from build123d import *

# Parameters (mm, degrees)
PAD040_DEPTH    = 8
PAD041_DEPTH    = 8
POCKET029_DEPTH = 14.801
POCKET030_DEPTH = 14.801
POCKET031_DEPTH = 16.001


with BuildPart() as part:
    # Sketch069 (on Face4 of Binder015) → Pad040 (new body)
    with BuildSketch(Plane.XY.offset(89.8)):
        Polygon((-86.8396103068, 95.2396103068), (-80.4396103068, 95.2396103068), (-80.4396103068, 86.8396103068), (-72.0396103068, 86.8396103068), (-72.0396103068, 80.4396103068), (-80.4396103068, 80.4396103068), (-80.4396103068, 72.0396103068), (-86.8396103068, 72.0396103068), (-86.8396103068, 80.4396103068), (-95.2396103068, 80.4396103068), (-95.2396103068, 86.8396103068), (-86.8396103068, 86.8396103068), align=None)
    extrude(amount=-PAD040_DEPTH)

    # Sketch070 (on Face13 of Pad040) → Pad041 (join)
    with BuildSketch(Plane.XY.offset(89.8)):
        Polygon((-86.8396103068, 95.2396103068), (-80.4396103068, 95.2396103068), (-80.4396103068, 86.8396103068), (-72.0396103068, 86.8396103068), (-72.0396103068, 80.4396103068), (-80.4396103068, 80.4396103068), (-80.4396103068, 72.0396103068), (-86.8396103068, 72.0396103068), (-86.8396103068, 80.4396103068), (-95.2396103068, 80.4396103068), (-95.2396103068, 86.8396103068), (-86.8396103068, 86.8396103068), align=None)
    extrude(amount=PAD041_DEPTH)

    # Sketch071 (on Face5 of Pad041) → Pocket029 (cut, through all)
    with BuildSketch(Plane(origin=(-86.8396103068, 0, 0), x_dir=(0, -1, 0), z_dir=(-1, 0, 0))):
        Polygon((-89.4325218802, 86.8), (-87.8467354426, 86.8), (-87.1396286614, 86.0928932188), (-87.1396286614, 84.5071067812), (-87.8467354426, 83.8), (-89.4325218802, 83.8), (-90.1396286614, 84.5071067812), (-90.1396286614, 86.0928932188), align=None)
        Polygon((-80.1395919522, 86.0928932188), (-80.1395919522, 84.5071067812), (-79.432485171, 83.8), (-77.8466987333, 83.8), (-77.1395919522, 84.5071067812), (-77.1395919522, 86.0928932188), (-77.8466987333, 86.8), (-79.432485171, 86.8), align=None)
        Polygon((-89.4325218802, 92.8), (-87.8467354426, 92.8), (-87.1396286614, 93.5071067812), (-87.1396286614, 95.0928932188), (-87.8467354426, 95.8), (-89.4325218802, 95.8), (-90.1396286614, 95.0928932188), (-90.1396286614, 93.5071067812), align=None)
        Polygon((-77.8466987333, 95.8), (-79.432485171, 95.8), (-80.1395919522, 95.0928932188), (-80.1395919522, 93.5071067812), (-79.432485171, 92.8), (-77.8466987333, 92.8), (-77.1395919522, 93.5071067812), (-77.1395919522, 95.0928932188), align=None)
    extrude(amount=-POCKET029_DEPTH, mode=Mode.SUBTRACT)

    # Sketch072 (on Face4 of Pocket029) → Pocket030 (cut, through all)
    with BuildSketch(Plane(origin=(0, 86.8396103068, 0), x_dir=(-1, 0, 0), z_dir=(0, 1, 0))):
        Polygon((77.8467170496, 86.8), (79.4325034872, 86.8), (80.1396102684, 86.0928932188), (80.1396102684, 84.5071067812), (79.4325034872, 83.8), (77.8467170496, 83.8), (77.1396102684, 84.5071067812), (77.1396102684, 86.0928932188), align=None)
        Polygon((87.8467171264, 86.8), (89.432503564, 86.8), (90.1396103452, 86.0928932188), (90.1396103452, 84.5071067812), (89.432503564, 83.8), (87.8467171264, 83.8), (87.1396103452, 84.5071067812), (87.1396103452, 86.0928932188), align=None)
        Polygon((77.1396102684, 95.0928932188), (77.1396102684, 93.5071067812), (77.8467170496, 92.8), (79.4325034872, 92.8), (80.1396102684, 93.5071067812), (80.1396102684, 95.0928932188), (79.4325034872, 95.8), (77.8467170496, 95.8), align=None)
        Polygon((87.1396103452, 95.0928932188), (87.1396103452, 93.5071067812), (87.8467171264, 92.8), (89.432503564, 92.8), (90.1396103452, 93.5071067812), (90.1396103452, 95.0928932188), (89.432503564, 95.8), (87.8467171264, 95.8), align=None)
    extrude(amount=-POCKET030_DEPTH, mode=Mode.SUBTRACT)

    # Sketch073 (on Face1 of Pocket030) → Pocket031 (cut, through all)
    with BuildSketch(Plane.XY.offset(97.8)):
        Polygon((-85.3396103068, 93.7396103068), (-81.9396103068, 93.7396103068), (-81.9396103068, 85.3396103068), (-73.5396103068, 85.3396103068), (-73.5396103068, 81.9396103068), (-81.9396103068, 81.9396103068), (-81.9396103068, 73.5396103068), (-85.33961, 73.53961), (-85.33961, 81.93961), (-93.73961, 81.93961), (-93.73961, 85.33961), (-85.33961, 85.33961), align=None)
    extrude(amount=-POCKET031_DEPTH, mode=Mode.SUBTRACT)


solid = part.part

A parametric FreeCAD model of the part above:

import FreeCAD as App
import Part
import Sketcher
Q = App.Units.Quantity


def add_polygon(sketch, points):
    """Adds a closed chain of lines whose ends are joined by coincident constraints."""
    first, n = sketch.GeometryCount, len(points)
    for a, b in zip(points, points[1:] + points[:1]):
        sketch.addGeometry(Part.LineSegment(App.Vector(*a, 0), App.Vector(*b, 0)), False)
    for i in range(n):
        sketch.addConstraint(Sketcher.Constraint("Coincident", first + i, 2, first + (i + 1) % n, 1))

doc = App.newDocument("Part")
body = doc.addObject("PartDesign::Body", "Body")

# Sketch on XY plane
sketch1 = doc.addObject("Sketcher::SketchObject", "Sketch")
body.addObject(sketch1)
sketch1.AttachmentSupport = (doc.XY_Plane, [""])
sketch1.MapMode = "FlatFace"
sketch1.AttachmentOffset = App.Placement(App.Vector(0, 0, 89.8), App.Rotation())
add_polygon(sketch1, [(-80, 95), (-87, 95), (-87, 87), (-95, 87), (-95, 80), (-87, 80), (-87, 72), (-80, 72), (-80, 80), (-72, 80), (-72, 87), (-80, 87)])  # lines 0-11
sketch1.addConstraint([
    Sketcher.Constraint("Horizontal", 0),
    Sketcher.Constraint("Vertical", 1),
    Sketcher.Constraint("Horizontal", 2),
    Sketcher.Constraint("Vertical", 3),
    Sketcher.Constraint("Horizontal", 4),
    Sketcher.Constraint("Vertical", 5),
    Sketcher.Constraint("Horizontal", 6),
    Sketcher.Constraint("Vertical", 7),
    Sketcher.Constraint("Horizontal", 8),
    Sketcher.Constraint("Vertical", 9),
    Sketcher.Constraint("Horizontal", 10),
    Sketcher.Constraint("Vertical", 11),
    Sketcher.Constraint("Horizontal", 4, 2, 7, 2),
    Sketcher.Constraint("Horizontal", 2, 2, 9, 2),
    Sketcher.Constraint("Vertical", 1, 2, 4, 2),
    Sketcher.Constraint("Vertical", 7, 2, 10, 2),
    Sketcher.Constraint("Equal", 4, 8),
    Sketcher.Constraint("Equal", 10, 1),
    Sketcher.Constraint("Equal", 6, 3),
    Sketcher.Constraint("Equal", 1, 5),
    Sketcher.Constraint("DistanceX", 0, 2, 0, 1, Q("6.4 mm")),
    Sketcher.Constraint("DistanceX", 2, 2, 2, 1, Q("8.4 mm")),
    Sketcher.Constraint("DistanceX", 0, 2, -1, 1, Q("86.83961 mm")),
    Sketcher.Constraint("DistanceY", -1, 1, 0, 2, Q("95.23961 mm")),
])
pad1 = doc.addObject("PartDesign::Pad", "Pad")
body.addObject(pad1)
pad1.Profile = sketch1
pad1.Length = 8
pad1.Reversed = True

# Sketch on XY plane
sketch2 = doc.addObject("Sketcher::SketchObject", "Sketch001")
body.addObject(sketch2)
sketch2.AttachmentSupport = (doc.XY_Plane, [""])
sketch2.MapMode = "FlatFace"
sketch2.AttachmentOffset = App.Placement(App.Vector(0, 0, 89.8), App.Rotation())
add_polygon(sketch2, [(-80, 95), (-87, 95), (-87, 87), (-95, 87), (-95, 80), (-87, 80), (-87, 72), (-80, 72), (-80, 80), (-72, 80), (-72, 87), (-80, 87)])  # lines 0-11
sketch2.addConstraint([
    Sketcher.Constraint("Horizontal", 0),
    Sketcher.Constraint("Vertical", 1),
    Sketcher.Constraint("Horizontal", 2),
    Sketcher.Constraint("Vertical", 3),
    Sketcher.Constraint("Horizontal", 4),
    Sketcher.Constraint("Vertical", 5),
    Sketcher.Constraint("Horizontal", 6),
    Sketcher.Constraint("Vertical", 7),
    Sketcher.Constraint("Horizontal", 8),
    Sketcher.Constraint("Vertical", 9),
    Sketcher.Constraint("Horizontal", 10),
    Sketcher.Constraint("Vertical", 11),
    Sketcher.Constraint("Horizontal", 4, 2, 7, 2),
    Sketcher.Constraint("Horizontal", 2, 2, 9, 2),
    Sketcher.Constraint("Vertical", 1, 2, 4, 2),
    Sketcher.Constraint("Vertical", 7, 2, 10, 2),
    Sketcher.Constraint("Equal", 4, 8),
    Sketcher.Constraint("Equal", 10, 1),
    Sketcher.Constraint("Equal", 6, 3),
    Sketcher.Constraint("Equal", 1, 5),
    Sketcher.Constraint("DistanceX", 0, 2, 0, 1, Q("6.4 mm")),
    Sketcher.Constraint("DistanceX", 2, 2, 2, 1, Q("8.4 mm")),
    Sketcher.Constraint("DistanceX", 0, 2, -1, 1, Q("86.83961 mm")),
    Sketcher.Constraint("DistanceY", -1, 1, 0, 2, Q("95.23961 mm")),
])
pad2 = doc.addObject("PartDesign::Pad", "Pad001")
body.addObject(pad2)
pad2.Profile = sketch2
pad2.Length = 8

# Sketch on YZ plane
sketch3 = doc.addObject("Sketcher::SketchObject", "Sketch002")
body.addObject(sketch3)
sketch3.AttachmentSupport = (doc.YZ_Plane, [""])
sketch3.MapMode = "FlatFace"
sketch3.AttachmentOffset = App.Placement(App.Vector(0, 0, -86.83961), App.Rotation())
add_polygon(sketch3, [(87.8, 86.8), (89.4, 86.8), (90.1, 86.1), (90.1, 84.5), (89.4, 83.8), (87.8, 83.8), (87.1, 84.5), (87.1, 86.1)])  # lines 0-7
add_polygon(sketch3, [(80.1, 86.1), (80.1, 84.5), (79.4, 83.8), (77.8, 83.8), (77.1, 84.5), (77.1, 86.1), (77.8, 86.8), (79.4, 86.8)])  # lines 8-15
add_polygon(sketch3, [(89.4, 92.8), (87.8, 92.8), (87.1, 93.5), (87.1, 95.1), (87.8, 95.8), (89.4, 95.8), (90.1, 95.1), (90.1, 93.5)])  # lines 16-23
add_polygon(sketch3, [(77.8, 95.8), (79.4, 95.8), (80.1, 95.1), (80.1, 93.5), (79.4, 92.8), (77.8, 92.8), (77.1, 93.5), (77.1, 95.1)])  # lines 24-31
sketch3.addConstraint([
    Sketcher.Constraint("Horizontal", 0),
    Sketcher.Constraint("Vertical", 2),
    Sketcher.Constraint("Horizontal", 4),
    Sketcher.Constraint("Vertical", 6),
    Sketcher.Constraint("Vertical", 8),
    Sketcher.Constraint("Horizontal", 10),
    Sketcher.Constraint("Vertical", 12),
    Sketcher.Constraint("Horizontal", 14),
    Sketcher.Constraint("Horizontal", 16),
    Sketcher.Constraint("Vertical", 18),
    Sketcher.Constraint("Horizontal", 20),
    Sketcher.Constraint("Vertical", 22),
    Sketcher.Constraint("Horizontal", 24),
    Sketcher.Constraint("Vertical", 26),
    Sketcher.Constraint("Horizontal", 28),
    Sketcher.Constraint("Vertical", 30),
    Sketcher.Constraint("Perpendicular", 1, 3),
    Sketcher.Constraint("Perpendicular", 3, 5),
    Sketcher.Constraint("Perpendicular", 5, 7),
    Sketcher.Constraint("Parallel", 7, 9),
    Sketcher.Constraint("Perpendicular", 9, 11),
    Sketcher.Constraint("Perpendicular", 11, 13),
    Sketcher.Constraint("Perpendicular", 13, 15),
    Sketcher.Constraint("Parallel", 15, 17),
    Sketcher.Constraint("Perpendicular", 17, 19),
    Sketcher.Constraint("Perpendicular", 19, 21),
    Sketcher.Constraint("Perpendicular", 21, 23),
    Sketcher.Constraint("Perpendicular", 23, 25),
    Sketcher.Constraint("Perpendicular", 25, 27),
    Sketcher.Constraint("Perpendicular", 27, 29),
    Sketcher.Constraint("Perpendicular", 29, 31),
    Sketcher.Constraint("Horizontal", 2, 2, 5, 2),
    Sketcher.Constraint("Horizontal", 1, 2, 6, 2),
    Sketcher.Constraint("Horizontal", 5, 2, 8, 2),
    Sketcher.Constraint("Horizontal", 4, 2, 9, 2),
    Sketcher.Constraint("Horizontal", 8, 2, 11, 2),
    Sketcher.Constraint("Horizontal", 6, 2, 12, 2),
    Sketcher.Constraint("Horizontal", 7, 2, 13, 2),
    Sketcher.Constraint("Horizontal", 12, 2, 15, 2),
    Sketcher.Constraint("Horizontal", 18, 2, 21, 2),
    Sketcher.Constraint("Horizontal", 17, 2, 22, 2),
    Sketcher.Constraint("Horizontal", 20, 2, 24, 2),
    Sketcher.Constraint("Horizontal", 21, 2, 25, 2),
    Sketcher.Constraint("Horizontal", 22, 2, 26, 2),
    Sketcher.Constraint("Horizontal", 23, 2, 27, 2),
    Sketcher.Constraint("Horizontal", 26, 2, 29, 2),
    Sketcher.Constraint("Horizontal", 25, 2, 30, 2),
    Sketcher.Constraint("Vertical", 0, 2, 3, 2),
    Sketcher.Constraint("Vertical", 4, 2, 7, 2),
    Sketcher.Constraint("Vertical", 7, 2, 16, 2),
    Sketcher.Constraint("Vertical", 6, 2, 17, 2),
    Sketcher.Constraint("Vertical", 16, 2, 19, 2),
    Sketcher.Constraint("Vertical", 3, 2, 20, 2),
    Sketcher.Constraint("Vertical", 14, 2, 24, 2),
    Sketcher.Constraint("Vertical", 13, 2, 28, 2),
    Sketcher.Constraint("Equal", 4, 10),
    Sketcher.Constraint("Equal", 28, 2),
    Sketcher.Constraint("Equal", 12, 18),
    Sketcher.Constraint("Distance", 1, Q("1 mm")),
    Sketcher.Constraint("DistanceY", 3, 2, 0, 2, Q("3 mm")),
    Sketcher.Constraint("DistanceY", 7, 2, 16, 2, Q("6 mm")),
    Sketcher.Constraint("DistanceY", -1, 1, 0, 2, Q("86.8 mm")),
    Sketcher.Constraint("DistanceX", -1, 1, 10, 2, Q("77.846699 mm")),
    Sketcher.Constraint("DistanceX", -1, 1, 0, 2, Q("89.432522 mm")),
])
pocket1 = doc.addObject("PartDesign::Pocket", "Pocket")
body.addObject(pocket1)
pocket1.Profile = sketch3
pocket1.Type = "ThroughAll"
pocket1.Reversed = True

# Sketch on XZ plane
sketch4 = doc.addObject("Sketcher::SketchObject", "Sketch003")
body.addObject(sketch4)
sketch4.AttachmentSupport = (doc.XZ_Plane, [""])
sketch4.MapMode = "FlatFace"
sketch4.AttachmentOffset = App.Placement(App.Vector(0, 0, -86.83961), App.Rotation())
add_polygon(sketch4, [(-79.4, 86.8), (-77.8, 86.8), (-77.1, 86.1), (-77.1, 84.5), (-77.8, 83.8), (-79.4, 83.8), (-80.1, 84.5), (-80.1, 86.1)])  # lines 0-7
add_polygon(sketch4, [(-89.4, 86.8), (-87.8, 86.8), (-87.1, 86.1), (-87.1, 84.5), (-87.8, 83.8), (-89.4, 83.8), (-90.1, 84.5), (-90.1, 86.1)])  # lines 8-15
add_polygon(sketch4, [(-77.1, 95.1), (-77.1, 93.5), (-77.8, 92.8), (-79.4, 92.8), (-80.1, 93.5), (-80.1, 95.1), (-79.4, 95.8), (-77.8, 95.8)])  # lines 16-23
add_polygon(sketch4, [(-87.1, 95.1), (-87.1, 93.5), (-87.8, 92.8), (-89.4, 92.8), (-90.1, 93.5), (-90.1, 95.1), (-89.4, 95.8), (-87.8, 95.8)])  # lines 24-31
sketch4.addConstraint([
    Sketcher.Constraint("Horizontal", 0),
    Sketcher.Constraint("Vertical", 2),
    Sketcher.Constraint("Horizontal", 4),
    Sketcher.Constraint("Vertical", 6),
    Sketcher.Constraint("Horizontal", 8),
    Sketcher.Constraint("Vertical", 10),
    Sketcher.Constraint("Horizontal", 12),
    Sketcher.Constraint("Vertical", 14),
    Sketcher.Constraint("Vertical", 16),
    Sketcher.Constraint("Horizontal", 18),
    Sketcher.Constraint("Vertical", 20),
    Sketcher.Constraint("Horizontal", 22),
    Sketcher.Constraint("Vertical", 24),
    Sketcher.Constraint("Horizontal", 26),
    Sketcher.Constraint("Vertical", 28),
    Sketcher.Constraint("Horizontal", 30),
    Sketcher.Constraint("Perpendicular", 1, 3),
    Sketcher.Constraint("Perpendicular", 3, 5),
    Sketcher.Constraint("Perpendicular", 5, 7),
    Sketcher.Constraint("Perpendicular", 7, 9),
    Sketcher.Constraint("Perpendicular", 9, 11),
    Sketcher.Constraint("Perpendicular", 11, 13),
    Sketcher.Constraint("Perpendicular", 13, 15),
    Sketcher.Constraint("Parallel", 15, 17),
    Sketcher.Constraint("Perpendicular", 17, 19),
    Sketcher.Constraint("Perpendicular", 19, 21),
    Sketcher.Constraint("Perpendicular", 21, 23),
    Sketcher.Constraint("Perpendicular", 23, 25),
    Sketcher.Constraint("Perpendicular", 25, 27),
    Sketcher.Constraint("Perpendicular", 27, 29),
    Sketcher.Constraint("Perpendicular", 29, 31),
    Sketcher.Constraint("Horizontal", 2, 2, 5, 2),
    Sketcher.Constraint("Horizontal", 1, 2, 6, 2),
    Sketcher.Constraint("Horizontal", 7, 2, 8, 2),
    Sketcher.Constraint("Horizontal", 6, 2, 9, 2),
    Sketcher.Constraint("Horizontal", 5, 2, 10, 2),
    Sketcher.Constraint("Horizontal", 4, 2, 11, 2),
    Sketcher.Constraint("Horizontal", 10, 2, 13, 2),
    Sketcher.Constraint("Horizontal", 9, 2, 14, 2),
    Sketcher.Constraint("Horizontal", 16, 2, 19, 2),
    Sketcher.Constraint("Horizontal", 20, 2, 23, 2),
    Sketcher.Constraint("Horizontal", 19, 2, 24, 2),
    Sketcher.Constraint("Horizontal", 18, 2, 25, 2),
    Sketcher.Constraint("Horizontal", 24, 2, 27, 2),
    Sketcher.Constraint("Horizontal", 23, 2, 28, 2),
    Sketcher.Constraint("Horizontal", 22, 2, 29, 2),
    Sketcher.Constraint("Horizontal", 28, 2, 31, 2),
    Sketcher.Constraint("Vertical", 0, 2, 3, 2),
    Sketcher.Constraint("Vertical", 4, 2, 7, 2),
    Sketcher.Constraint("Vertical", 2, 2, 16, 2),
    Sketcher.Constraint("Vertical", 3, 2, 17, 2),
    Sketcher.Constraint("Vertical", 7, 2, 18, 2),
    Sketcher.Constraint("Vertical", 18, 2, 21, 2),
    Sketcher.Constraint("Vertical", 10, 2, 24, 2),
    Sketcher.Constraint("Vertical", 15, 2, 26, 2),
    Sketcher.Constraint("Equal", 4, 8),
    Sketcher.Constraint("Equal", 30, 2),
    Sketcher.Constraint("Equal", 14, 16),
    Sketcher.Constraint("Distance", 1, Q("1 mm")),
    Sketcher.Constraint("DistanceY", 3, 2, 0, 2, Q("3 mm")),
    Sketcher.Constraint("DistanceX", 8, 2, 0, 2, Q("10 mm")),
    Sketcher.Constraint("DistanceY", 2, 2, 16, 2, Q("9 mm")),
    Sketcher.Constraint("DistanceY", -1, 1, 0, 2, Q("86.8 mm")),
    Sketcher.Constraint("DistanceX", 1, 2, -1, 1, Q("77.13961 mm")),
])
pocket2 = doc.addObject("PartDesign::Pocket", "Pocket001")
body.addObject(pocket2)
pocket2.Profile = sketch4
pocket2.Type = "ThroughAll"
pocket2.Reversed = True

# Sketch on XY plane
sketch5 = doc.addObject("Sketcher::SketchObject", "Sketch004")
body.addObject(sketch5)
sketch5.AttachmentSupport = (doc.XY_Plane, [""])
sketch5.MapMode = "FlatFace"
sketch5.AttachmentOffset = App.Placement(App.Vector(0, 0, 97.8), App.Rotation())
add_polygon(sketch5, [(-81.9, 93.7), (-85.3, 93.7), (-85.3, 85.3), (-93.7, 85.3), (-93.7, 81.9), (-85.3, 81.9), (-85.3, 73.5), (-81.9, 73.5), (-81.9, 81.9), (-73.5, 81.9), (-73.5, 85.3), (-81.9, 85.3)])  # lines 0-11
sketch5.addConstraint([
    Sketcher.Constraint("Horizontal", 0),
    Sketcher.Constraint("Vertical", 1),
    Sketcher.Constraint("Horizontal", 2),
    Sketcher.Constraint("Vertical", 3),
    Sketcher.Constraint("Horizontal", 4),
    Sketcher.Constraint("Vertical", 5),
    Sketcher.Constraint("Horizontal", 6),
    Sketcher.Constraint("Vertical", 7),
    Sketcher.Constraint("Horizontal", 8),
    Sketcher.Constraint("Vertical", 9),
    Sketcher.Constraint("Horizontal", 10),
    Sketcher.Constraint("Vertical", 11),
    Sketcher.Constraint("Horizontal", 4, 2, 7, 2),
    Sketcher.Constraint("Horizontal", 2, 2, 9, 2),
    Sketcher.Constraint("Vertical", 1, 2, 4, 2),
    Sketcher.Constraint("Vertical", 7, 2, 10, 2),
    Sketcher.Constraint("Equal", 4, 8),
    Sketcher.Constraint("Equal", 10, 1),
    Sketcher.Constraint("Equal", 6, 3),
    Sketcher.Constraint("Equal", 1, 5),
    Sketcher.Constraint("DistanceX", 0, 2, 0, 1, Q("3.4 mm")),
    Sketcher.Constraint("DistanceX", 2, 2, 2, 1, Q("8.4 mm")),
    Sketcher.Constraint("DistanceX", 0, 2, -1, 1, Q("85.33961 mm")),
    Sketcher.Constraint("DistanceY", -1, 1, 0, 2, Q("93.73961 mm")),
])
pocket3 = doc.addObject("PartDesign::Pocket", "Pocket002")
body.addObject(pocket3)
pocket3.Profile = sketch5
pocket3.Type = "ThroughAll"

doc.recompute()
